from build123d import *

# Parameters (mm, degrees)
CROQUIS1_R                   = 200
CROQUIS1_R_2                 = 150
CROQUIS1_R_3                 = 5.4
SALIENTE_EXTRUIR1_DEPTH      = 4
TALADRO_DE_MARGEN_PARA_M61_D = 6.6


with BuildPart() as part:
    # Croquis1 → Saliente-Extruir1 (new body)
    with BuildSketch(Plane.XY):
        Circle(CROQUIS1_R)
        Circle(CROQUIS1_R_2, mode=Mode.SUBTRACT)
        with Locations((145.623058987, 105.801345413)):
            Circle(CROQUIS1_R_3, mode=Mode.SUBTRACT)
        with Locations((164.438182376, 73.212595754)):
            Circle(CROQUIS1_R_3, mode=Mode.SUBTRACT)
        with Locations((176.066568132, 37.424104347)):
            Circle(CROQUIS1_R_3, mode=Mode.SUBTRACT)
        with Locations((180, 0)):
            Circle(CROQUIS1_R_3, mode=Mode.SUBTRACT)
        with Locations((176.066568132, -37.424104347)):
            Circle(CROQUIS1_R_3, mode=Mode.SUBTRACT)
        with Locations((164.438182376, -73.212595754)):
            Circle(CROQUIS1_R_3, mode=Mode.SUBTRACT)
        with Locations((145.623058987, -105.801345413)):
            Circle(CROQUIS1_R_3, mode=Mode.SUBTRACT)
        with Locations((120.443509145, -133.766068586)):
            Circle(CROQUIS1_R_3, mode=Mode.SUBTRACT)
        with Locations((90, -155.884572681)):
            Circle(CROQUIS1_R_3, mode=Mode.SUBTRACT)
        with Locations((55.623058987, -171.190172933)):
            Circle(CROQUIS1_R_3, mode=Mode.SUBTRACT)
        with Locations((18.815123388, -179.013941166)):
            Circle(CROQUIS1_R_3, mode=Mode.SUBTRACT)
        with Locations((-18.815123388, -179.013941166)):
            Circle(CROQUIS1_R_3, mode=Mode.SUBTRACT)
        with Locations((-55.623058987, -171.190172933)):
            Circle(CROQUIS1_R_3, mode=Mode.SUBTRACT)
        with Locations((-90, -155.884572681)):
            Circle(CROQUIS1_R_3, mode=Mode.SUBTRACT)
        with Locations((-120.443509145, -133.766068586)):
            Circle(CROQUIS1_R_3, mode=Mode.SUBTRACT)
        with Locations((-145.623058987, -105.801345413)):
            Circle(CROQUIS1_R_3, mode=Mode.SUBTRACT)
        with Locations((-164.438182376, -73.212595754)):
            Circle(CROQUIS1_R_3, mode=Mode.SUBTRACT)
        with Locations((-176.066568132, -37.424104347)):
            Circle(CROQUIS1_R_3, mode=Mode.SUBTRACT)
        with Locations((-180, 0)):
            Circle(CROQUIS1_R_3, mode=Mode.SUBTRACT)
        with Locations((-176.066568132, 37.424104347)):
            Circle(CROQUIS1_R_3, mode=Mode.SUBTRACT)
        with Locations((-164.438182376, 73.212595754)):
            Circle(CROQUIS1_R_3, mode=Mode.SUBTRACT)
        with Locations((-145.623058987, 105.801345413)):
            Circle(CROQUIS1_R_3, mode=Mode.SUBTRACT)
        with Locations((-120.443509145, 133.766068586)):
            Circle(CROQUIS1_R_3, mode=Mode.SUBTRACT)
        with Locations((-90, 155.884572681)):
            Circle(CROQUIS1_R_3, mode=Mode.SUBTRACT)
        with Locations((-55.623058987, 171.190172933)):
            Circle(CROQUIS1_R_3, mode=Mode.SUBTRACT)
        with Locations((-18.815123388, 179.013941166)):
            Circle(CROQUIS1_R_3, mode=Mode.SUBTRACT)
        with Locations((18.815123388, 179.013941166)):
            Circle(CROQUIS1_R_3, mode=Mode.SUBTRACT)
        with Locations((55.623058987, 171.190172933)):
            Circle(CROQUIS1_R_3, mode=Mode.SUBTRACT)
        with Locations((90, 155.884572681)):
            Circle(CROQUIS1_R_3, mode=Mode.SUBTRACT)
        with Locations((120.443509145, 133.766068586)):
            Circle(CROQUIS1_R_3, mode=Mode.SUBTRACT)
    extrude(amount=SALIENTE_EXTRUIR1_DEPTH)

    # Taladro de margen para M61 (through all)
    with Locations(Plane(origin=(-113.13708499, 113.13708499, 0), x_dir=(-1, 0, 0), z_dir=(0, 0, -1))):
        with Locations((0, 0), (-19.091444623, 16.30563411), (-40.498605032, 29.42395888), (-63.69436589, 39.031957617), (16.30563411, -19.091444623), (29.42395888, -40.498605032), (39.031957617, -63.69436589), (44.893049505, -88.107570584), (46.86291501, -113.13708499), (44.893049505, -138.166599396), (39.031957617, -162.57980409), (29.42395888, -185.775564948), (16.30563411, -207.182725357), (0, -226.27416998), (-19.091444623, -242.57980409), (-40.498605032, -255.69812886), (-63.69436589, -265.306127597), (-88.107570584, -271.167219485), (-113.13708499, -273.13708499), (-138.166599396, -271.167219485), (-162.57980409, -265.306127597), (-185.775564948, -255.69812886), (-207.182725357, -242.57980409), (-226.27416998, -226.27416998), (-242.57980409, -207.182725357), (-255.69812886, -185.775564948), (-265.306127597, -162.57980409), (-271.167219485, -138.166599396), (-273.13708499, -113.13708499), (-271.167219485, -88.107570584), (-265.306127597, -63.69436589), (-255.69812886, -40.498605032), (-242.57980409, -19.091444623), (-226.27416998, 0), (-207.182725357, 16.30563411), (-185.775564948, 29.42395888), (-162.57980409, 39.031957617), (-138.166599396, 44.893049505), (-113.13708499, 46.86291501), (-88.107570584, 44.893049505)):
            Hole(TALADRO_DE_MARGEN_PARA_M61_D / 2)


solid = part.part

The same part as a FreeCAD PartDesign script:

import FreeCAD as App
import Part
import Sketcher
Q = App.Units.Quantity

doc = App.newDocument("Part")
body = doc.addObject("PartDesign::Body", "Body")

# Sketch on XY plane
sketch1 = doc.addObject("Sketcher::SketchObject", "Sketch")
body.addObject(sketch1)
sketch1.AttachmentSupport = (doc.XY_Plane, [""])
sketch1.MapMode = "FlatFace"
sketch1.addGeometry(Part.Circle(App.Vector(0, 0, 0), App.Vector(0, 0, 1), 200), False)
sketch1.addGeometry(Part.Circle(App.Vector(-145.623059, -105.801345, 0), App.Vector(0, 0, 1), 5.4), False)
sketch1.addGeometry(Part.Circle(App.Vector(-120.443509, -133.766069, 0), App.Vector(0, 0, 1), 5.4), False)
sketch1.addGeometry(Part.Circle(App.Vector(-55.623059, -171.190173, 0), App.Vector(0, 0, 1), 5.4), False)
sketch1.addGeometry(Part.Circle(App.Vector(-90, -155.884573, 0), App.Vector(0, 0, 1), 5.4), False)
sketch1.addGeometry(Part.Circle(App.Vector(-18.815123, -179.013941, 0), App.Vector(0, 0, 1), 5.4), False)
sketch1.addGeometry(Part.Circle(App.Vector(-164.438182, -73.212596, 0), App.Vector(0, 0, 1), 5.4), False)
sketch1.addGeometry(Part.Circle(App.Vector(-176.066568, -37.424104, 0), App.Vector(0, 0, 1), 5.4), False)
sketch1.addGeometry(Part.Circle(App.Vector(-180, 0, 0), App.Vector(0, 0, 1), 5.4), False)
sketch1.addGeometry(Part.Circle(App.Vector(0, 0, 0), App.Vector(0, 0, 1), 150), False)
sketch1.addGeometry(Part.Circle(App.Vector(18.815123, -179.013941, 0), App.Vector(0, 0, 1), 5.4), False)
sketch1.addGeometry(Part.Circle(App.Vector(55.623059, -171.190173, 0), App.Vector(0, 0, 1), 5.4), False)
sketch1.addGeometry(Part.Circle(App.Vector(90, -155.884573, 0), App.Vector(0, 0, 1), 5.4), False)
sketch1.addGeometry(Part.Circle(App.Vector(120.443509, -133.766069, 0), App.Vector(0, 0, 1), 5.4), False)
sketch1.addGeometry(Part.Circle(App.Vector(145.623059, -105.801345, 0), App.Vector(0, 0, 1), 5.4), False)
sketch1.addGeometry(Part.Circle(App.Vector(164.438182, -73.212596, 0), App.Vector(0, 0, 1), 5.4), False)
sketch1.addGeometry(Part.Circle(App.Vector(176.066568, -37.424104, 0), App.Vector(0, 0, 1), 5.4), False)
sketch1.addGeometry(Part.Circle(App.Vector(180, 0, 0), App.Vector(0, 0, 1), 5.4), False)
sketch1.addGeometry(Part.Circle(App.Vector(-176.066568, 37.424104, 0), App.Vector(0, 0, 1), 5.4), False)
sketch1.addGeometry(Part.Circle(App.Vector(-164.438182, 73.212596, 0), App.Vector(0, 0, 1), 5.4), False)
sketch1.addGeometry(Part.Circle(App.Vector(-145.623059, 105.801345, 0), App.Vector(0, 0, 1), 5.4), False)
sketch1.addGeometry(Part.Circle(App.Vector(-120.443509, 133.766069, 0), App.Vector(0, 0, 1), 5.4), False)
sketch1.addGeometry(Part.Circle(App.Vector(-90, 155.884573, 0), App.Vector(0, 0, 1), 5.4), False)
sketch1.addGeometry(Part.Circle(App.Vector(-55.623059, 171.190173, 0), App.Vector(0, 0, 1), 5.4), False)
sketch1.addGeometry(Part.Circle(App.Vector(-18.815123, 179.013941, 0), App.Vector(0, 0, 1), 5.4), False)
sketch1.addGeometry(Part.Circle(App.Vector(176.066568, 37.424104, 0), App.Vector(0, 0, 1), 5.4), False)
sketch1.addGeometry(Part.Circle(App.Vector(164.438182, 73.212596, 0), App.Vector(0, 0, 1), 5.4), False)
sketch1.addGeometry(Part.Circle(App.Vector(18.815123, 179.013941, 0), App.Vector(0, 0, 1), 5.4), False)
sketch1.addGeometry(Part.Circle(App.Vector(90, 155.884573, 0), App.Vector(0, 0, 1), 5.4), False)
sketch1.addGeometry(Part.Circle(App.Vector(55.623059, 171.190173, 0), App.Vector(0, 0, 1), 5.4), False)
sketch1.addGeometry(Part.Circle(App.Vector(120.443509, 133.766069, 0), App.Vector(0, 0, 1), 5.4), False)
sketch1.addGeometry(Part.Circle(App.Vector(145.623059, 105.801345, 0), App.Vector(0, 0, 1), 5.4), False)
sketch1.addConstraint(Sketcher.Constraint("Coincident", 0, 3, -1, 1))
sketch1.addConstraint(Sketcher.Constraint("Coincident", 9, 3, -1, 1))
sketch1.addConstraint(Sketcher.Constraint("Equal", 1, 2))
sketch1.addConstraint(Sketcher.Constraint("Equal", 2, 3))
sketch1.addConstraint(Sketcher.Constraint("Equal", 3, 4))
sketch1.addConstraint(Sketcher.Constraint("Equal", 4, 5))
sketch1.addConstraint(Sketcher.Constraint("Equal", 5, 6))
sketch1.addConstraint(Sketcher.Constraint("Equal", 6, 7))
sketch1.addConstraint(Sketcher.Constraint("Equal", 7, 8))
sketch1.addConstraint(Sketcher.Constraint("Equal", 8, 10))
sketch1.addConstraint(Sketcher.Constraint("Equal", 10, 11))
sketch1.addConstraint(Sketcher.Constraint("Equal", 11, 12))
sketch1.addConstraint(Sketcher.Constraint("Equal", 12, 13))
sketch1.addConstraint(Sketcher.Constraint("Equal", 13, 14))
sketch1.addConstraint(Sketcher.Constraint("Equal", 14, 15))
sketch1.addConstraint(Sketcher.Constraint("Equal", 15, 16))
sketch1.addConstraint(Sketcher.Constraint("Equal", 16, 17))
sketch1.addConstraint(Sketcher.Constraint("Equal", 17, 18))
sketch1.addConstraint(Sketcher.Constraint("Equal", 18, 19))
sketch1.addConstraint(Sketcher.Constraint("Equal", 19, 20))
sketch1.addConstraint(Sketcher.Constraint("Equal", 20, 21))
sketch1.addConstraint(Sketcher.Constraint("Equal", 21, 22))
sketch1.addConstraint(Sketcher.Constraint("Equal", 22, 23))
sketch1.addConstraint(Sketcher.Constraint("Equal", 23, 24))
sketch1.addConstraint(Sketcher.Constraint("Equal", 24, 25))
sketch1.addConstraint(Sketcher.Constraint("Equal", 25, 26))
sketch1.addConstraint(Sketcher.Constraint("Equal", 26, 27))
sketch1.addConstraint(Sketcher.Constraint("Equal", 27, 28))
sketch1.addConstraint(Sketcher.Constraint("Equal", 28, 29))
sketch1.addConstraint(Sketcher.Constraint("Equal", 29, 30))
sketch1.addConstraint(Sketcher.Constraint("Equal", 30, 31))
sketch1.addConstraint(Sketcher.Constraint("Symmetric", 8, 3, 17, 3, -1, 1))
sketch1.addConstraint(Sketcher.Constraint("Symmetric", 16, 3, 18, 3, -1, 1))
sketch1.addConstraint(Sketcher.Constraint("Symmetric", 15, 3, 19, 3, -1, 1))
sketch1.addConstraint(Sketcher.Constraint("Symmetric", 14, 3, 20, 3, -1, 1))
sketch1.addConstraint(Sketcher.Constraint("Symmetric", 13, 3, 21, 3, -1, 1))
sketch1.addConstraint(Sketcher.Constraint("Symmetric", 12, 3, 22, 3, -1, 1))
sketch1.addConstraint(Sketcher.Constraint("Symmetric", 11, 3, 23, 3, -1, 1))
sketch1.addConstraint(Sketcher.Constraint("Symmetric", 10, 3, 24, 3, -1, 1))
sketch1.addConstraint(Sketcher.Constraint("Symmetric", 7, 3, 25, 3, -1, 1))
sketch1.addConstraint(Sketcher.Constraint("Symmetric", 6, 3, 26, 3, -1, 1))
sketch1.addConstraint(Sketcher.Constraint("Symmetric", 5, 3, 27, 3, -1, 1))
sketch1.addConstraint(Sketcher.Constraint("Symmetric", 4, 3, 28, 3, -1, 1))
sketch1.addConstraint(Sketcher.Constraint("Symmetric", 3, 3, 29, 3, -1, 1))
sketch1.addConstraint(Sketcher.Constraint("Symmetric", 2, 3, 30, 3, -1, 1))
sketch1.addConstraint(Sketcher.Constraint("Symmetric", 1, 3, 31, 3, -1, 1))
sketch1.addConstraint(Sketcher.Constraint("Symmetric", 5, 3, 10, 3, -2))
sketch1.addConstraint(Sketcher.Constraint("Symmetric", 3, 3, 11, 3, -2))
sketch1.addConstraint(Sketcher.Constraint("Symmetric", 4, 3, 12, 3, -2))
sketch1.addConstraint(Sketcher.Constraint("Symmetric", 2, 3, 13, 3, -2))
sketch1.addConstraint(Sketcher.Constraint("Symmetric", 1, 3, 14, 3, -2))
sketch1.addConstraint(Sketcher.Constraint("Symmetric", 6, 3, 15, 3, -2))
sketch1.addConstraint(Sketcher.Constraint("Symmetric", 7, 3, 16, 3, -2))
sketch1.addConstraint(Sketcher.Constraint("PointOnObject", 8, 3, -1))
sketch1.addConstraint(Sketcher.Constraint("Diameter", 0, Q("400 mm")))
sketch1.addConstraint(Sketcher.Constraint("Diameter", 9, Q("300 mm")))
sketch1.addConstraint(Sketcher.Constraint("Diameter", 1, Q("10.8 mm")))
sketch1.addConstraint(Sketcher.Constraint("DistanceX", 4, 3, -1, 1, Q("90 mm")))
sketch1.addConstraint(Sketcher.Constraint("DistanceX", 8, 3, -1, 1, Q("180 mm")))
sketch1.addConstraint(Sketcher.Constraint("DistanceX", 1, 3, 3, 3, Q("90 mm")))
sketch1.addConstraint(Sketcher.Constraint("DistanceY", 3, 3, 4, 3, Q("15.3056 mm")))
sketch1.addConstraint(Sketcher.Constraint("DistanceY", 6, 3, 18, 3, Q("110.6367 mm")))
sketch1.addConstraint(Sketcher.Constraint("DistanceX", 1, 3, -1, 1, Q("145.623059 mm")))
sketch1.addConstraint(Sketcher.Constraint("DistanceX", 2, 3, -1, 1, Q("120.443509 mm")))
sketch1.addConstraint(Sketcher.Constraint("DistanceY", 2, 3, -1, 1, Q("133.766069 mm")))
sketch1.addConstraint(Sketcher.Constraint("DistanceY", 5, 3, -1, 1, Q("179.013941 mm")))
sketch1.addConstraint(Sketcher.Constraint("DistanceX", 7, 3, -1, 1, Q("176.066568 mm")))
sketch1.addConstraint(Sketcher.Constraint("DistanceY", 5, 3, 3, 3, Q("7.823768 mm")))
sketch1.addConstraint(Sketcher.Constraint("DistanceY", 1, 3, 6, 3, Q("32.58875 mm")))
sketch1.addConstraint(Sketcher.Constraint("DistanceX", 6, 3, 5, 3, Q("145.623059 mm")))
sketch1.addConstraint(Sketcher.Constraint("DistanceY", 6, 3, 7, 3, Q("35.788491 mm")))
sketch1.addConstraint(Sketcher.Constraint("DistanceX", 5, 3, -1, 1, Q("18.815123 mm")))
pad1 = doc.addObject("PartDesign::Pad", "Pad")
body.addObject(pad1)
pad1.Profile = sketch1
pad1.Length = 4

# Sketch on XY plane
sketch2 = doc.addObject("Sketcher::SketchObject", "Sketch001")
body.addObject(sketch2)
sketch2.AttachmentSupport = (doc.XY_Plane, [""])
sketch2.MapMode = "FlatFace"
sketch2.addGeometry(Part.Circle(App.Vector(-113.137085, 113.137085, 0), App.Vector(0, 0, 1), 3.3), False)
sketch2.addGeometry(Part.Circle(App.Vector(-94.04564, 129.442719, 0), App.Vector(0, 0, 1), 3.3), False)
sketch2.addGeometry(Part.Circle(App.Vector(-72.63848, 142.561044, 0), App.Vector(0, 0, 1), 3.3), False)
sketch2.addGeometry(Part.Circle(App.Vector(-49.442719, 152.169043, 0), App.Vector(0, 0, 1), 3.3), False)
sketch2.addGeometry(Part.Circle(App.Vector(-129.442719, 94.04564, 0), App.Vector(0, 0, 1), 3.3), False)
sketch2.addGeometry(Part.Circle(App.Vector(-142.561044, 72.63848, 0), App.Vector(0, 0, 1), 3.3), False)
sketch2.addGeometry(Part.Circle(App.Vector(-152.169043, 49.442719, 0), App.Vector(0, 0, 1), 3.3), False)
sketch2.addGeometry(Part.Circle(App.Vector(-158.030134, 25.029514, 0), App.Vector(0, 0, 1), 3.3), False)
sketch2.addGeometry(Part.Circle(App.Vector(-160, 0, 0), App.Vector(0, 0, 1), 3.3), False)
sketch2.addGeometry(Part.Circle(App.Vector(-158.030134, -25.029514, 0), App.Vector(0, 0, 1), 3.3), False)
sketch2.addGeometry(Part.Circle(App.Vector(-152.169043, -49.442719, 0), App.Vector(0, 0, 1), 3.3), False)
sketch2.addGeometry(Part.Circle(App.Vector(-142.561044, -72.63848, 0), App.Vector(0, 0, 1), 3.3), False)
sketch2.addGeometry(Part.Circle(App.Vector(-129.442719, -94.04564, 0), App.Vector(0, 0, 1), 3.3), False)
sketch2.addGeometry(Part.Circle(App.Vector(-113.137085, -113.137085, 0), App.Vector(0, 0, 1), 3.3), False)
sketch2.addGeometry(Part.Circle(App.Vector(-94.04564, -129.442719, 0), App.Vector(0, 0, 1), 3.3), False)
sketch2.addGeometry(Part.Circle(App.Vector(-72.63848, -142.561044, 0), App.Vector(0, 0, 1), 3.3), False)
sketch2.addGeometry(Part.Circle(App.Vector(-49.442719, -152.169043, 0), App.Vector(0, 0, 1), 3.3), False)
sketch2.addGeometry(Part.Circle(App.Vector(-25.029514, -158.030134, 0), App.Vector(0, 0, 1), 3.3), False)
sketch2.addGeometry(Part.Circle(App.Vector(0, -160, 0), App.Vector(0, 0, 1), 3.3), False)
sketch2.addGeometry(Part.Circle(App.Vector(25.029514, -158.030134, 0), App.Vector(0, 0, 1), 3.3), False)
sketch2.addGeometry(Part.Circle(App.Vector(49.442719, -152.169043, 0), App.Vector(0, 0, 1), 3.3), False)
sketch2.addGeometry(Part.Circle(App.Vector(72.63848, -142.561044, 0), App.Vector(0, 0, 1), 3.3), False)
sketch2.addGeometry(Part.Circle(App.Vector(94.04564, -129.442719, 0), App.Vector(0, 0, 1), 3.3), False)
sketch2.addGeometry(Part.Circle(App.Vector(113.137085, -113.137085, 0), App.Vector(0, 0, 1), 3.3), False)
sketch2.addGeometry(Part.Circle(App.Vector(129.442719, -94.04564, 0), App.Vector(0, 0, 1), 3.3), False)
sketch2.addGeometry(Part.Circle(App.Vector(142.561044, -72.63848, 0), App.Vector(0, 0, 1), 3.3), False)
sketch2.addGeometry(Part.Circle(App.Vector(152.169043, -49.442719, 0), App.Vector(0, 0, 1), 3.3), False)
sketch2.addGeometry(Part.Circle(App.Vector(158.030134, -25.029514, 0), App.Vector(0, 0, 1), 3.3), False)
sketch2.addGeometry(Part.Circle(App.Vector(160, 0, 0), App.Vector(0, 0, 1), 3.3), False)
sketch2.addGeometry(Part.Circle(App.Vector(158.030134, 25.029514, 0), App.Vector(0, 0, 1), 3.3), False)
sketch2.addGeometry(Part.Circle(App.Vector(152.169043, 49.442719, 0), App.Vector(0, 0, 1), 3.3), False)
sketch2.addGeometry(Part.Circle(App.Vector(142.561044, 72.63848, 0), App.Vector(0, 0, 1), 3.3), False)
sketch2.addGeometry(Part.Circle(App.Vector(129.442719, 94.04564, 0), App.Vector(0, 0, 1), 3.3), False)
sketch2.addGeometry(Part.Circle(App.Vector(113.137085, 113.137085, 0), App.Vector(0, 0, 1), 3.3), False)
sketch2.addGeometry(Part.Circle(App.Vector(94.04564, 129.442719, 0), App.Vector(0, 0, 1), 3.3), False)
sketch2.addGeometry(Part.Circle(App.Vector(72.63848, 142.561044, 0), App.Vector(0, 0, 1), 3.3), False)
sketch2.addGeometry(Part.Circle(App.Vector(49.442719, 152.169043, 0), App.Vector(0, 0, 1), 3.3), False)
sketch2.addGeometry(Part.Circle(App.Vector(25.029514, 158.030134, 0), App.Vector(0, 0, 1), 3.3), False)
sketch2.addGeometry(Part.Circle(App.Vector(0, 160, 0), App.Vector(0, 0, 1), 3.3), False)
sketch2.addGeometry(Part.Circle(App.Vector(-25.029514, 158.030134, 0), App.Vector(0, 0, 1), 3.3), False)
sketch2.addConstraint(Sketcher.Constraint("Equal", 0, 1))
sketch2.addConstraint(Sketcher.Constraint("Equal", 1, 2))
sketch2.addConstraint(Sketcher.Constraint("Equal", 2, 3))
sketch2.addConstraint(Sketcher.Constraint("Equal", 3, 4))
sketch2.addConstraint(Sketcher.Constraint("Equal", 4, 5))
sketch2.addConstraint(Sketcher.Constraint("Equal", 5, 6))
sketch2.addConstraint(Sketcher.Constraint("Equal", 6, 7))
sketch2.addConstraint(Sketcher.Constraint("Equal", 7, 8))
sketch2.addConstraint(Sketcher.Constraint("Equal", 8, 9))
sketch2.addConstraint(Sketcher.Constraint("Equal", 9, 10))
sketch2.addConstraint(Sketcher.Constraint("Equal", 10, 11))
sketch2.addConstraint(Sketcher.Constraint("Equal", 11, 12))
sketch2.addConstraint(Sketcher.Constraint("Equal", 12, 13))
sketch2.addConstraint(Sketcher.Constraint("Equal", 13, 14))
sketch2.addConstraint(Sketcher.Constraint("Equal", 14, 15))
sketch2.addConstraint(Sketcher.Constraint("Equal", 15, 16))
sketch2.addConstraint(Sketcher.Constraint("Equal", 16, 17))
sketch2.addConstraint(Sketcher.Constraint("Equal", 17, 18))
sketch2.addConstraint(Sketcher.Constraint("Equal", 18, 19))
sketch2.addConstraint(Sketcher.Constraint("Equal", 19, 20))
sketch2.addConstraint(Sketcher.Constraint("Equal", 20, 21))
sketch2.addConstraint(Sketcher.Constraint("Equal", 21, 22))
sketch2.addConstraint(Sketcher.Constraint("Equal", 22, 23))
sketch2.addConstraint(Sketcher.Constraint("Equal", 23, 24))
sketch2.addConstraint(Sketcher.Constraint("Equal", 24, 25))
sketch2.addConstraint(Sketcher.Constraint("Equal", 25, 26))
sketch2.addConstraint(Sketcher.Constraint("Equal", 26, 27))
sketch2.addConstraint(Sketcher.Constraint("Equal", 27, 28))
sketch2.addConstraint(Sketcher.Constraint("Equal", 28, 29))
sketch2.addConstraint(Sketcher.Constraint("Equal", 29, 30))
sketch2.addConstraint(Sketcher.Constraint("Equal", 30, 31))
sketch2.addConstraint(Sketcher.Constraint("Equal", 31, 32))
sketch2.addConstraint(Sketcher.Constraint("Equal", 32, 33))
sketch2.addConstraint(Sketcher.Constraint("Equal", 33, 34))
sketch2.addConstraint(Sketcher.Constraint("Equal", 34, 35))
sketch2.addConstraint(Sketcher.Constraint("Equal", 35, 36))
sketch2.addConstraint(Sketcher.Constraint("Equal", 36, 37))
sketch2.addConstraint(Sketcher.Constraint("Equal", 37, 38))
sketch2.addConstraint(Sketcher.Constraint("Equal", 38, 39))
sketch2.addConstraint(Sketcher.Constraint("Symmetric", 3, 3, 20, 3, -1, 1))
sketch2.addConstraint(Sketcher.Constraint("Symmetric", 2, 3, 21, 3, -1, 1))
sketch2.addConstraint(Sketcher.Constraint("Symmetric", 1, 3, 22, 3, -1, 1))
sketch2.addConstraint(Sketcher.Constraint("Symmetric", 0, 3, 23, 3, -1, 1))
sketch2.addConstraint(Sketcher.Constraint("Symmetric", 4, 3, 24, 3, -1, 1))
sketch2.addConstraint(Sketcher.Constraint("Symmetric", 5, 3, 25, 3, -1, 1))
sketch2.addConstraint(Sketcher.Constraint("Symmetric", 6, 3, 26, 3, -1, 1))
sketch2.addConstraint(Sketcher.Constraint("Symmetric", 7, 3, 27, 3, -1, 1))
sketch2.addConstraint(Sketcher.Constraint("Symmetric", 8, 3, 28, 3, -1, 1))
sketch2.addConstraint(Sketcher.Constraint("Symmetric", 9, 3, 29, 3, -1, 1))
sketch2.addConstraint(Sketcher.Constraint("Symmetric", 10, 3, 30, 3, -1, 1))
sketch2.addConstraint(Sketcher.Constraint("Symmetric", 11, 3, 31, 3, -1, 1))
sketch2.addConstraint(Sketcher.Constraint("Symmetric", 12, 3, 32, 3, -1, 1))
sketch2.addConstraint(Sketcher.Constraint("Symmetric", 13, 3, 33, 3, -1, 1))
sketch2.addConstraint(Sketcher.Constraint("Symmetric", 14, 3, 34, 3, -1, 1))
sketch2.addConstraint(Sketcher.Constraint("Symmetric", 15, 3, 35, 3, -1, 1))
sketch2.addConstraint(Sketcher.Constraint("Symmetric", 16, 3, 36, 3, -1, 1))
sketch2.addConstraint(Sketcher.Constraint("Symmetric", 17, 3, 37, 3, -1, 1))
sketch2.addConstraint(Sketcher.Constraint("Symmetric", 18, 3, 38, 3, -1, 1))
sketch2.addConstraint(Sketcher.Constraint("Symmetric", 19, 3, 39, 3, -1, 1))
sketch2.addConstraint(Sketcher.Constraint("Symmetric", 17, 3, 19, 3, -2))
sketch2.addConstraint(Sketcher.Constraint("Symmetric", 16, 3, 20, 3, -2))
sketch2.addConstraint(Sketcher.Constraint("Symmetric", 15, 3, 21, 3, -2))
sketch2.addConstraint(Sketcher.Constraint("Symmetric", 14, 3, 22, 3, -2))
sketch2.addConstraint(Sketcher.Constraint("Symmetric", 13, 3, 23, 3, -2))
sketch2.addConstraint(Sketcher.Constraint("Symmetric", 12, 3, 24, 3, -2))
sketch2.addConstraint(Sketcher.Constraint("Symmetric", 11, 3, 25, 3, -2))
sketch2.addConstraint(Sketcher.Constraint("Symmetric", 10, 3, 26, 3, -2))
sketch2.addConstraint(Sketcher.Constraint("Symmetric", 9, 3, 27, 3, -2))
sketch2.addConstraint(Sketcher.Constraint("PointOnObject", 8, 3, -1))
sketch2.addConstraint(Sketcher.Constraint("PointOnObject", 18, 3, -2))
sketch2.addConstraint(Sketcher.Constraint("Diameter", 0, Q("6.6 mm")))
sketch2.addConstraint(Sketcher.Constraint("DistanceX", 8, 3, -1, 1, Q("160 mm")))
sketch2.addConstraint(Sketcher.Constraint("DistanceY", 18, 3, -1, 1, Q("160 mm")))
sketch2.addConstraint(Sketcher.Constraint("DistanceX", 4, 3, 3, 3, Q("80 mm")))
sketch2.addConstraint(Sketcher.Constraint("DistanceY", 6, 3, 1, 3, Q("80 mm")))
sketch2.addConstraint(Sketcher.Constraint("DistanceY", 2, 3, 3, 3, Q("9.607999 mm")))
sketch2.addConstraint(Sketcher.Constraint("DistanceX", 6, 3, 5, 3, Q("9.607999 mm")))
sketch2.addConstraint(Sketcher.Constraint("DistanceY", 10, 3, 5, 3, Q("122.081199 mm")))
sketch2.addConstraint(Sketcher.Constraint("DistanceX", 15, 3, 20, 3, Q("122.081199 mm")))
sketch2.addConstraint(Sketcher.Constraint("DistanceX", 1, 3, -1, 1, Q("94.04564 mm")))
sketch2.addConstraint(Sketcher.Constraint("DistanceY", -1, 1, 1, 3, Q("129.442719 mm")))
sketch2.addConstraint(Sketcher.Constraint("DistanceX", 2, 3, -1, 1, Q("72.63848 mm")))
sketch2.addConstraint(Sketcher.Constraint("DistanceY", -1, 1, 4, 3, Q("94.04564 mm")))
sketch2.addConstraint(Sketcher.Constraint("DistanceY", 0, 3, 2, 3, Q("29.423959 mm")))
sketch2.addConstraint(Sketcher.Constraint("DistanceX", 5, 3, 0, 3, Q("29.423959 mm")))
sketch2.addConstraint(Sketcher.Constraint("DistanceX", 7, 3, 6, 3, Q("5.861092 mm")))
sketch2.addConstraint(Sketcher.Constraint("DistanceY", 7, 3, 0, 3, Q("88.107571 mm")))
sketch2.addConstraint(Sketcher.Constraint("DistanceY", 9, 3, 7, 3, Q("50.059029 mm")))
sketch2.addConstraint(Sketcher.Constraint("DistanceY", 17, 3, 16, 3, Q("5.861092 mm")))
sketch2.addConstraint(Sketcher.Constraint("DistanceX", 13, 3, 17, 3, Q("88.107571 mm")))
sketch2.addConstraint(Sketcher.Constraint("DistanceX", 17, 3, 19, 3, Q("50.059029 mm")))
doc.recompute()
hole = doc.addObject("PartDesign::Hole", "Hole")
body.addObject(hole)
hole.Profile = sketch2
hole.ThreadType = "None"
hole.Diameter = 6.6
hole.DepthType = "ThroughAll"
hole.Reversed = True

doc.recompute()
